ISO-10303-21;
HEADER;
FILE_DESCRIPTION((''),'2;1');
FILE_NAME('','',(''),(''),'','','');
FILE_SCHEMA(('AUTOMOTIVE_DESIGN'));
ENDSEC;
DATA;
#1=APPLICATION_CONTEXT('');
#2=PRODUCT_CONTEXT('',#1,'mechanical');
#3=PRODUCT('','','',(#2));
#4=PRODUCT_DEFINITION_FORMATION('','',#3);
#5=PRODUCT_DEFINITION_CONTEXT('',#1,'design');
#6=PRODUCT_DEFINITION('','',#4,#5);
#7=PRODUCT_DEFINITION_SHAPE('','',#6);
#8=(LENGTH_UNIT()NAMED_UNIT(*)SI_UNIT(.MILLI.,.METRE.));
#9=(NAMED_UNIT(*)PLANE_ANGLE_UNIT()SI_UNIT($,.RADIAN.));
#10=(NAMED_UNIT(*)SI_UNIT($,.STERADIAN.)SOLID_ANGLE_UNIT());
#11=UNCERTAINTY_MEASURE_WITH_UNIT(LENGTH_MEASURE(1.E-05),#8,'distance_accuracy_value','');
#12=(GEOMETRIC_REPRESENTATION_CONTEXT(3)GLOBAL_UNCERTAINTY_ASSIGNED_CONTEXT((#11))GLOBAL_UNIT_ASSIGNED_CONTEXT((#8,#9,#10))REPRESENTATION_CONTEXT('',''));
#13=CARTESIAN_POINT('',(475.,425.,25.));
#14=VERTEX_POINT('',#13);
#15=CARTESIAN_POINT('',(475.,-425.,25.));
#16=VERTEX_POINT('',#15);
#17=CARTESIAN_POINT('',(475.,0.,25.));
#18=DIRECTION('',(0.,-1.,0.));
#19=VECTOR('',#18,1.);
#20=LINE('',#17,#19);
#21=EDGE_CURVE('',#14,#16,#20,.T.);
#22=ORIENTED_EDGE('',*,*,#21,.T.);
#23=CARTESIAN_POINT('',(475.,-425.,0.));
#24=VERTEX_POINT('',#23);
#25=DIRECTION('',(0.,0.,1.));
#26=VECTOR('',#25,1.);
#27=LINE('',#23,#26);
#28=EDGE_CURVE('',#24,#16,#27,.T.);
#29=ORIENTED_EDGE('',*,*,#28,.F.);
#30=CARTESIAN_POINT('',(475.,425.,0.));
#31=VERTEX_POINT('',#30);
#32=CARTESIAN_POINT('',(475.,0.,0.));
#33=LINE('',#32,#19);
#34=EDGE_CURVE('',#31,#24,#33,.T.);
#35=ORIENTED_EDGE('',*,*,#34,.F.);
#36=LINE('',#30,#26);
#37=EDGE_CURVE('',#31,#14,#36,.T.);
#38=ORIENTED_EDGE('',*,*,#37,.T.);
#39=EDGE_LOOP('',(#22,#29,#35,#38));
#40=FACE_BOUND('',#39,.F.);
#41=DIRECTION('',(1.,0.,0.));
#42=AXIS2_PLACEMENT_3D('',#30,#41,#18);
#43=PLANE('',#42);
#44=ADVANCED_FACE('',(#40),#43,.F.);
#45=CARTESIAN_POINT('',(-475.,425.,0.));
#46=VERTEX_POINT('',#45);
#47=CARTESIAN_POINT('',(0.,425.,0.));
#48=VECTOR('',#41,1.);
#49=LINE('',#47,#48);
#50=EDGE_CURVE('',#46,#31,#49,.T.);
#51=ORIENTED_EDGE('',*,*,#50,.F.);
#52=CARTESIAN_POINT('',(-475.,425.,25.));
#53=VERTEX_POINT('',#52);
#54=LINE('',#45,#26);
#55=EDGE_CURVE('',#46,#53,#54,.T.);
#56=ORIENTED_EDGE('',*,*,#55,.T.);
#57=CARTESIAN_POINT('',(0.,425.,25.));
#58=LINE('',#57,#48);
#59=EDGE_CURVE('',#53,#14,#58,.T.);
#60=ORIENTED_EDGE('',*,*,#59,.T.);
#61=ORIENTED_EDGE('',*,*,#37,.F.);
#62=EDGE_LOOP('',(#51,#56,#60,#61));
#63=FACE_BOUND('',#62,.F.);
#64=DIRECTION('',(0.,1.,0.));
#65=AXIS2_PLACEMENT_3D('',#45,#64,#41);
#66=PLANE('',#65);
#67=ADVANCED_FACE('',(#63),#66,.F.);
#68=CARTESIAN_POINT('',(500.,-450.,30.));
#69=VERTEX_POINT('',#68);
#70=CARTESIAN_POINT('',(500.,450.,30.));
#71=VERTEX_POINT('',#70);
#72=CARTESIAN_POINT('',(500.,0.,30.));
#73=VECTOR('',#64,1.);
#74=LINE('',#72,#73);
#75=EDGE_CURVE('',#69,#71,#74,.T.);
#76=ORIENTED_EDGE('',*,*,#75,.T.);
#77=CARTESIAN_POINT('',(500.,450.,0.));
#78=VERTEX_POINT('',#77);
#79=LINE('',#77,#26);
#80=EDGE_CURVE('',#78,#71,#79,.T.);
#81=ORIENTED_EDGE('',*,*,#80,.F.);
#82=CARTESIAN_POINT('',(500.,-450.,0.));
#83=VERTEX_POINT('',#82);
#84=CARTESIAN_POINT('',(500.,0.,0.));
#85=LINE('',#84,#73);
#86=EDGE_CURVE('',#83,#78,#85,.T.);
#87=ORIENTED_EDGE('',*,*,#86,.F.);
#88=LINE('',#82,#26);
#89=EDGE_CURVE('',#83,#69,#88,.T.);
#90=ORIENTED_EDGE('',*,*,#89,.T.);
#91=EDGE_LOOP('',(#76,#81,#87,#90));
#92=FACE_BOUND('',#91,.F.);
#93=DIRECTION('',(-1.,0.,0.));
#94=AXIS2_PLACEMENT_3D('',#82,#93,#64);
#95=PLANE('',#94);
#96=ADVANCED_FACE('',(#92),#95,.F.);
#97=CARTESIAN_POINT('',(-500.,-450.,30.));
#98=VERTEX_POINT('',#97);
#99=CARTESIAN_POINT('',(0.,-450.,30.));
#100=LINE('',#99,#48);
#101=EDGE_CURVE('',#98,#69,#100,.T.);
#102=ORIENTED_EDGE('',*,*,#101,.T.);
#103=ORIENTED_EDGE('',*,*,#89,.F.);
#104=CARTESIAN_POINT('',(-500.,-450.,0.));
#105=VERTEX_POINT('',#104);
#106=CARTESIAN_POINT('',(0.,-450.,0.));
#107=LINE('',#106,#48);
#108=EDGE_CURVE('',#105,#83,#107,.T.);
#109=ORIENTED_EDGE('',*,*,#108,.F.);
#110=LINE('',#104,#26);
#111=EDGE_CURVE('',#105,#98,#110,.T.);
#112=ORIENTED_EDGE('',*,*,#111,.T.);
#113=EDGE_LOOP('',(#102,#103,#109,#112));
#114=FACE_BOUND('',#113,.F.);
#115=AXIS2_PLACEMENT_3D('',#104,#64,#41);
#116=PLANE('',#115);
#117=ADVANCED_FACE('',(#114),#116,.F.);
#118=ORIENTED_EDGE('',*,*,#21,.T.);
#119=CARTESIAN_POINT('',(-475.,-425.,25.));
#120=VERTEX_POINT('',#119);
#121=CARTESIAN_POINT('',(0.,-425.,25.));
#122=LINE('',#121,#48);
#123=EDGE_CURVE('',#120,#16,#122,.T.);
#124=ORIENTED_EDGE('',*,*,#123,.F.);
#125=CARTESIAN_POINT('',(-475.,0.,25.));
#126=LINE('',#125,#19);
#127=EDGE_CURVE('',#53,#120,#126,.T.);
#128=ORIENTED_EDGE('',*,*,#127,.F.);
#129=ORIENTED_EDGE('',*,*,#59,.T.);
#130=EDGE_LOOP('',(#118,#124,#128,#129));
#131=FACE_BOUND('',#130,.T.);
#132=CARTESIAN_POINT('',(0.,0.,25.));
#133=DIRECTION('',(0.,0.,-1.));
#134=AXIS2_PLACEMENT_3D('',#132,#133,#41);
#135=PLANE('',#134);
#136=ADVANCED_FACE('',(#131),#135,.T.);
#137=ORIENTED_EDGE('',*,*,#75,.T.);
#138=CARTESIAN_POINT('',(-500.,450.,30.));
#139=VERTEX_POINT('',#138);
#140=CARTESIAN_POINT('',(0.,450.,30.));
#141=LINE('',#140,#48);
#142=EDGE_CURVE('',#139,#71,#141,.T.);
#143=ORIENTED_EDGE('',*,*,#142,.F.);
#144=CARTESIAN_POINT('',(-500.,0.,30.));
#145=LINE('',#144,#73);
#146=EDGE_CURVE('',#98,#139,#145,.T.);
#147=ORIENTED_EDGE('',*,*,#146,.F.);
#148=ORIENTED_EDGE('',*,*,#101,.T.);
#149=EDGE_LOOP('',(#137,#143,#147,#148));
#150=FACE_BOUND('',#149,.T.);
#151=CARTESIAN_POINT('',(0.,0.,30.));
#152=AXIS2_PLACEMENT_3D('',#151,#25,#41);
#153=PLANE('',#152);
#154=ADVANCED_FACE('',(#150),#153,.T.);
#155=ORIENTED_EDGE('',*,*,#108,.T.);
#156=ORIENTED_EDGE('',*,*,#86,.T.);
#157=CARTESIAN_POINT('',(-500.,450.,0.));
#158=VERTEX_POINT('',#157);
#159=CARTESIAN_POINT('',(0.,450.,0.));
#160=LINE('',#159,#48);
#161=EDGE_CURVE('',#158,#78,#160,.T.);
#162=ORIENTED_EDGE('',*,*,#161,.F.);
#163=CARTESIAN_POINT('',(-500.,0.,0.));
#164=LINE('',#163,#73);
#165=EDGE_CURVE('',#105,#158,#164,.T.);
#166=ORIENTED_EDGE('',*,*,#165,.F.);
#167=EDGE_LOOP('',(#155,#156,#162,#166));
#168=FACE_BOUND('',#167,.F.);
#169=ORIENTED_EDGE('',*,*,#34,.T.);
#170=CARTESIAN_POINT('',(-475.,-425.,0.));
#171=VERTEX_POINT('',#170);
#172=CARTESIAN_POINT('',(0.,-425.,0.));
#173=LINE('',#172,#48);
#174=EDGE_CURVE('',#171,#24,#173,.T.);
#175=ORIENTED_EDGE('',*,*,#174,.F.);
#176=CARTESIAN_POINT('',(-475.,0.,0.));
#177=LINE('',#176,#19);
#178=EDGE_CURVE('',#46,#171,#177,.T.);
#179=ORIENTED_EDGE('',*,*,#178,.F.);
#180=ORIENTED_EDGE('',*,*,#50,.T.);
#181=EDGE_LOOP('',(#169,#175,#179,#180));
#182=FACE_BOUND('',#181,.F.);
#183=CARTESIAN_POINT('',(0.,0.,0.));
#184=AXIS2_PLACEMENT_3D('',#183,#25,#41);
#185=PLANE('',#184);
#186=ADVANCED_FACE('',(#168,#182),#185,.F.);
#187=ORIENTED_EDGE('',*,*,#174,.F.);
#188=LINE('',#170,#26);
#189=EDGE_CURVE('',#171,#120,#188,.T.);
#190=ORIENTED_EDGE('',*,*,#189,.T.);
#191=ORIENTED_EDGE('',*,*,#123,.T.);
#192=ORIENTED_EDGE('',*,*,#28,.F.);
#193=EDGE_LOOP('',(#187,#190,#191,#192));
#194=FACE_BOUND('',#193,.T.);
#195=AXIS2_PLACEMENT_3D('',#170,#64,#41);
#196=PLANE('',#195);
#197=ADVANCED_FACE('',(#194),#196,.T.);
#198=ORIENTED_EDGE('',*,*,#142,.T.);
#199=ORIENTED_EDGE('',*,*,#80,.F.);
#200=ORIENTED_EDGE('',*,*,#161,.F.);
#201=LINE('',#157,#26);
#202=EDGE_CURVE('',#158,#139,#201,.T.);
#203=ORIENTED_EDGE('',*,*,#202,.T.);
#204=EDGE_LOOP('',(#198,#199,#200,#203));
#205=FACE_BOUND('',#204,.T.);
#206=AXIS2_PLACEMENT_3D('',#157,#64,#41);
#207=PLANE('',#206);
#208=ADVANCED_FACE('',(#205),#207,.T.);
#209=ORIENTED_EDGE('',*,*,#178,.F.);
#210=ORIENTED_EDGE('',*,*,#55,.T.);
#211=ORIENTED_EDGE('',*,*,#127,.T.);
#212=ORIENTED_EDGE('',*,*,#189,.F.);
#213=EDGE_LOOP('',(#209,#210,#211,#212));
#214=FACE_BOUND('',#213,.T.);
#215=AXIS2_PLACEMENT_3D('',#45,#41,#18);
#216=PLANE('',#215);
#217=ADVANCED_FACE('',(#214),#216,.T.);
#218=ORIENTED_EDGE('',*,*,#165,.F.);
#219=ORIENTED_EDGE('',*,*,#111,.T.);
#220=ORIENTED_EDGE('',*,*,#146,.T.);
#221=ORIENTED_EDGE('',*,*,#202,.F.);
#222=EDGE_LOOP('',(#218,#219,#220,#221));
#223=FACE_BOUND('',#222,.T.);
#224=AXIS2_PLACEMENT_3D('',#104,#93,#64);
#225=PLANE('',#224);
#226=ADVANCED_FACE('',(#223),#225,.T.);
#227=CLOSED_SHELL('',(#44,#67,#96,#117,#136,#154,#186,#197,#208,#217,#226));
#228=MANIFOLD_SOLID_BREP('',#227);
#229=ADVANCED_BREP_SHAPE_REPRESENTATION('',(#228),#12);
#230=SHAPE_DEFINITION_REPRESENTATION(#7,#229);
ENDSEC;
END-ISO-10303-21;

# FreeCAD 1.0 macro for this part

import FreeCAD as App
import Part
import Sketcher

V = App.Vector

doc = App.newDocument("Part")
body = doc.addObject("PartDesign::Body", "Body")

# Sketch on XY plane
sketch1 = body.newObject("Sketcher::SketchObject", "Sketch")
sketch1.AttachmentSupport = (doc.getObject("XY_Plane"), [""])
sketch1.MapMode = "FlatFace"
sketch1.addGeometry([
    Part.LineSegment(V(-500, 450, 0), V(-500, -450, 0)),
    Part.LineSegment(V(-500, -450, 0), V(500, -450, 0)),
    Part.LineSegment(V(500, -450, 0), V(500, 450, 0)),
    Part.LineSegment(V(500, 450, 0), V(-500, 450, 0)),
], False)
sketch1.addConstraint([
    Sketcher.Constraint("Coincident", 0, 2, 1, 1),
    Sketcher.Constraint("Coincident", 1, 2, 2, 1),
    Sketcher.Constraint("Coincident", 2, 2, 3, 1),
    Sketcher.Constraint("Coincident", 3, 2, 0, 1),
    Sketcher.Constraint("Vertical", 0),
    Sketcher.Constraint("Horizontal", 1),
    Sketcher.Constraint("Vertical", 2),
    Sketcher.Constraint("Horizontal", 3),
    Sketcher.Constraint("Symmetric", 0, 2, 2, 2, -1, 1),
    Sketcher.Constraint("DistanceX", 1, 1, 1, 2, 1000.0),
    Sketcher.Constraint("DistanceY", 0, 2, 0, 1, 900.0),
])
pad1 = body.newObject("PartDesign::Pad", "Pad")
pad1.Profile = sketch1
pad1.Length = 30

# Sketch on XY plane
sketch2 = body.newObject("Sketcher::SketchObject", "Sketch001")
sketch2.AttachmentSupport = (doc.getObject("XY_Plane"), [""])
sketch2.MapMode = "FlatFace"
sketch2.addGeometry([
    Part.LineSegment(V(-475, -425, 0), V(-475, 425, 0)),
    Part.LineSegment(V(-475, 425, 0), V(475, 425, 0)),
    Part.LineSegment(V(475, 425, 0), V(475, -425, 0)),
    Part.LineSegment(V(475, -425, 0), V(-475, -425, 0)),
], False)
sketch2.addConstraint([
    Sketcher.Constraint("Coincident", 0, 2, 1, 1),
    Sketcher.Constraint("Coincident", 1, 2, 2, 1),
    Sketcher.Constraint("Coincident", 2, 2, 3, 1),
    Sketcher.Constraint("Coincident", 3, 2, 0, 1),
    Sketcher.Constraint("Vertical", 0),
    Sketcher.Constraint("Horizontal", 1),
    Sketcher.Constraint("Vertical", 2),
    Sketcher.Constraint("Horizontal", 3),
    Sketcher.Constraint("Symmetric", 0, 2, 2, 2, -1, 1),
    Sketcher.Constraint("DistanceX", 1, 1, 1, 2, 950.0),
    Sketcher.Constraint("DistanceY", 0, 1, 0, 2, 850.0),
])
pocket1 = body.newObject("PartDesign::Pocket", "Pocket")
pocket1.Profile = sketch2
pocket1.Length = 25
pocket1.Reversed = True

doc.recompute()
